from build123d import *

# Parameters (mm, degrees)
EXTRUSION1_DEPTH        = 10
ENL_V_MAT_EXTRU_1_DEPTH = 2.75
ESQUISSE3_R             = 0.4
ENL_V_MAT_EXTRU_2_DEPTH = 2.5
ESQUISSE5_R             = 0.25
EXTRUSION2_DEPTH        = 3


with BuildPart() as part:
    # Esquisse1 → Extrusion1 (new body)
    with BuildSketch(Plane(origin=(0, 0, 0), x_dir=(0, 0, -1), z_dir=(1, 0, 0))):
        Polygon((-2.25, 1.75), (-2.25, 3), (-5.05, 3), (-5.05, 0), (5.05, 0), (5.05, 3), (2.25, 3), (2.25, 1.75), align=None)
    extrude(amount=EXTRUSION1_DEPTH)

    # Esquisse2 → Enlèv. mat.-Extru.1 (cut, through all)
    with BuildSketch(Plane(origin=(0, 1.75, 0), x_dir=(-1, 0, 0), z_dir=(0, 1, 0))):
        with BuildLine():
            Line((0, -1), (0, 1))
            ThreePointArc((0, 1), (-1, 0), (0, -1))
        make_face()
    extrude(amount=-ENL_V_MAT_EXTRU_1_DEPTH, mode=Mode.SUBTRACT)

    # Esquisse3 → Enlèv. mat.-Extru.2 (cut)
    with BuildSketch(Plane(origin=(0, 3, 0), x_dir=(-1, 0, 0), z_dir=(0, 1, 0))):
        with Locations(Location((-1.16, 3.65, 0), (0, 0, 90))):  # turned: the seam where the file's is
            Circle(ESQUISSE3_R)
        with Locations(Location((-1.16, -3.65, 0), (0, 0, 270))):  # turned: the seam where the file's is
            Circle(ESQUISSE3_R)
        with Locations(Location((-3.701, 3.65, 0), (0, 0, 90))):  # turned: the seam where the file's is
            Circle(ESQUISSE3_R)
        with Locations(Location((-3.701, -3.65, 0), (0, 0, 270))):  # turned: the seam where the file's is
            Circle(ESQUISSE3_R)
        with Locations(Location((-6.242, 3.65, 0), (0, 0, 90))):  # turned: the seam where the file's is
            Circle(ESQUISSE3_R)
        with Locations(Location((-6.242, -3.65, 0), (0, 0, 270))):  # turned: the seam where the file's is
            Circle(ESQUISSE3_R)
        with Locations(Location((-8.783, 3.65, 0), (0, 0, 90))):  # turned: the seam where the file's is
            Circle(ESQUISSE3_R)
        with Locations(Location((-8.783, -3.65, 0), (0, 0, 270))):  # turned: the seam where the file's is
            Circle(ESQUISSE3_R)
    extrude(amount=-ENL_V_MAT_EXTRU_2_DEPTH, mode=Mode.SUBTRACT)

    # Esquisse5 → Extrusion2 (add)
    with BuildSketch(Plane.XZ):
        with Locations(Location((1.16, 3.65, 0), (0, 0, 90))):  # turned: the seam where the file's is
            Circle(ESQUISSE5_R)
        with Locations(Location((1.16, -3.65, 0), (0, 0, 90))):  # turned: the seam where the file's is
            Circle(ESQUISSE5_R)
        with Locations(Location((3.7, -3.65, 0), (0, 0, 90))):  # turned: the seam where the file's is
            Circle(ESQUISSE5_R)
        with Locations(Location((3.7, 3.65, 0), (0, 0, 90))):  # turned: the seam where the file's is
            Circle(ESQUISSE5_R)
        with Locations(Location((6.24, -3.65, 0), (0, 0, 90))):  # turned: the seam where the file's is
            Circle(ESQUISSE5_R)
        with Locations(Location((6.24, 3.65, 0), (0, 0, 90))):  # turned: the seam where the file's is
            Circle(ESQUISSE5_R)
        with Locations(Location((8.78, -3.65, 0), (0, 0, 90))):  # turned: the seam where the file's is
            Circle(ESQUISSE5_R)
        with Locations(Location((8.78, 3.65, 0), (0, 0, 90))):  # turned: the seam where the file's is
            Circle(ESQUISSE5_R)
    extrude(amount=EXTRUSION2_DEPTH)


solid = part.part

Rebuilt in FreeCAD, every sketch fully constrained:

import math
import FreeCAD as App
import Part
import Sketcher
from FreeCAD import Vector
Q = App.Units.Quantity


def add_polygon(sketch, points):
    """Adds a closed chain of lines whose ends are joined by coincident constraints."""
    first, n = sketch.GeometryCount, len(points)
    for a, b in zip(points, points[1:] + points[:1]):
        sketch.addGeometry(Part.LineSegment(App.Vector(*a, 0), App.Vector(*b, 0)), False)
    for i in range(n):
        sketch.addConstraint(Sketcher.Constraint("Coincident", first + i, 2, first + (i + 1) % n, 1))

doc = App.newDocument("Part")
params = doc.addObject("Spreadsheet::Sheet", "Params")
for row, (alias, value) in enumerate([
    ("sketch1_width", "3 mm"),
    ("sketch1_height", "2.8 mm"),
    ("sketch1_height2", "10.1 mm"),
    ("sketch1_width2", "1.25 mm"),
    ("pad1_length", "10 mm"),
    ("sketch2_radius", "1 mm"),
    ("sketch3_diameter", "0.8 mm"),
    ("pocket2_length", "2.5 mm"),
    ("sketch4_diameter", "0.5 mm"),
    ("pad2_length", "3 mm"),
], start=1):
    params.set(f"A{row}", alias)
    params.set(f"B{row}", "=" + value)
    params.setAlias(f"B{row}", alias)

body = doc.addObject("PartDesign::Body", "Body")

# Sketch on YZ plane
sketch1 = body.newObject("Sketcher::SketchObject", "Sketch")
sketch1.AttachmentSupport = (doc.getObject("YZ_Plane"), [""])
sketch1.MapMode = "FlatFace"
add_polygon(sketch1, [(1.8, 2.2), (3, 2.2), (3, 5), (0, 5), (0, -5), (3, -5), (3, -2.2), (1.8, -2.2)])  # lines 0-7
sketch1.addConstraint([
    Sketcher.Constraint("Horizontal", 0),
    Sketcher.Constraint("Vertical", 1),
    Sketcher.Constraint("Horizontal", 2),
    Sketcher.Constraint("Vertical", 3),
    Sketcher.Constraint("Horizontal", 4),
    Sketcher.Constraint("Vertical", 5),
    Sketcher.Constraint("Horizontal", 6),
    Sketcher.Constraint("Vertical", 7),
    Sketcher.Constraint("Symmetric", 2, 2, 3, 2, -1, 1),
    Sketcher.Constraint("Symmetric", 0, 2, 5, 2, -1),
    Sketcher.Constraint("DistanceX", 2, 2, 2, 1, Q("3 mm")),
    Sketcher.Constraint("DistanceY", 1, 1, 1, 2, Q("2.8 mm")),
    Sketcher.Constraint("DistanceY", 3, 2, 3, 1, Q("10.1 mm")),
    Sketcher.Constraint("DistanceX", 0, 1, 0, 2, Q("1.25 mm")),
])
sketch1.setExpression("Constraints[18]", "Params.sketch1_width")
sketch1.setExpression("Constraints[19]", "Params.sketch1_height")
sketch1.setExpression("Constraints[20]", "Params.sketch1_height2")
sketch1.setExpression("Constraints[21]", "Params.sketch1_width2")
pad1 = body.newObject("PartDesign::Pad", "Pad")
pad1.Profile = sketch1
pad1.setExpression("Length", "Params.pad1_length")

# Sketch on XZ plane
sketch2 = body.newObject("Sketcher::SketchObject", "Sketch001")
sketch2.AttachmentSupport = (doc.getObject("XZ_Plane"), [""])
sketch2.MapMode = "FlatFace"
sketch2.AttachmentOffset = App.Placement(Vector(0, 0, -1.75), App.Rotation())
sketch2.addGeometry([
    Part.LineSegment(Vector(0, -1, 0), Vector(0, 1, 0)),
    Part.ArcOfCircle(Part.Circle(Vector(0, 0, 0), Vector(0, 0, 1), 1), math.radians(-90), math.radians(90)),
], False)
sketch2.addConstraint([
    Sketcher.Constraint("Coincident", 0, 1, 1, 1),
    Sketcher.Constraint("Coincident", 1, 2, 0, 2),
    Sketcher.Constraint("Vertical", 0),
    Sketcher.Constraint("Coincident", 1, 3, -1, 1),
    Sketcher.Constraint("PointOnObject", 0, 1, -2),
    Sketcher.Constraint("Radius", 1, Q("1 mm")),
])
sketch2.setExpression("Constraints[5]", "Params.sketch2_radius")
pocket1 = body.newObject("PartDesign::Pocket", "Pocket")
pocket1.Profile = sketch2
pocket1.Type = "ThroughAll"
pocket1.Reversed = True

# Sketch on XZ plane
sketch3 = body.newObject("Sketcher::SketchObject", "Sketch002")
sketch3.AttachmentSupport = (doc.getObject("XZ_Plane"), [""])
sketch3.MapMode = "FlatFace"
sketch3.AttachmentOffset = App.Placement(Vector(0, 0, -3), App.Rotation())
sketch3.addGeometry([
    Part.Circle(Vector(1.16, 3.65, 0), Vector(0, 0, 1), 0.4),  # 0
    Part.Circle(Vector(1.16, -3.65, 0), Vector(0, 0, 1), 0.4),  # 1
    Part.Circle(Vector(3.7, 3.65, 0), Vector(0, 0, 1), 0.4),  # 2
    Part.Circle(Vector(3.7, -3.65, 0), Vector(0, 0, 1), 0.4),  # 3
    Part.Circle(Vector(6.24, 3.65, 0), Vector(0, 0, 1), 0.4),  # 4
    Part.Circle(Vector(6.24, -3.65, 0), Vector(0, 0, 1), 0.4),  # 5
    Part.Circle(Vector(8.78, 3.65, 0), Vector(0, 0, 1), 0.4),  # 6
    Part.Circle(Vector(8.78, -3.65, 0), Vector(0, 0, 1), 0.4),  # 7
], False)
sketch3.addConstraint([
    Sketcher.Constraint("Equal", 0, 1),
    Sketcher.Constraint("Equal", 1, 2),
    Sketcher.Constraint("Equal", 2, 3),
    Sketcher.Constraint("Equal", 3, 4),
    Sketcher.Constraint("Equal", 4, 5),
    Sketcher.Constraint("Equal", 5, 6),
    Sketcher.Constraint("Equal", 6, 7),
    Sketcher.Constraint("Symmetric", 0, 3, 1, 3, -1),
    Sketcher.Constraint("Symmetric", 2, 3, 3, 3, -1),
    Sketcher.Constraint("Symmetric", 4, 3, 5, 3, -1),
    Sketcher.Constraint("Symmetric", 6, 3, 7, 3, -1),
    Sketcher.Constraint("Horizontal", 0, 3, 2, 3),
    Sketcher.Constraint("Horizontal", 2, 3, 4, 3),
    Sketcher.Constraint("Horizontal", 4, 3, 6, 3),
    Sketcher.Constraint("Diameter", 0, Q("0.8 mm")),
    Sketcher.Constraint("DistanceY", 1, 3, 0, 3, Q("7.3 mm")),
    Sketcher.Constraint("DistanceX", -1, 1, 0, 3, Q("1.16 mm")),
    Sketcher.Constraint("DistanceX", -1, 1, 2, 3, Q("3.701 mm")),
    Sketcher.Constraint("DistanceX", -1, 1, 4, 3, Q("6.242 mm")),
    Sketcher.Constraint("DistanceX", -1, 1, 6, 3, Q("8.783 mm")),
])
sketch3.setExpression("Constraints[14]", "Params.sketch3_diameter")
pocket2 = body.newObject("PartDesign::Pocket", "Pocket001")
pocket2.Profile = sketch3
pocket2.setExpression("Length", "Params.pocket2_length")
pocket2.Reversed = True

# Sketch on XZ plane
sketch4 = body.newObject("Sketcher::SketchObject", "Sketch003")
sketch4.AttachmentSupport = (doc.getObject("XZ_Plane"), [""])
sketch4.MapMode = "FlatFace"
sketch4.addGeometry([
    Part.Circle(Vector(1.16, 3.65, 0), Vector(0, 0, 1), 0.25),  # 0
    Part.Circle(Vector(1.16, -3.65, 0), Vector(0, 0, 1), 0.25),  # 1
    Part.Circle(Vector(3.7, -3.65, 0), Vector(0, 0, 1), 0.25),  # 2
    Part.Circle(Vector(3.7, 3.65, 0), Vector(0, 0, 1), 0.25),  # 3
    Part.Circle(Vector(6.24, -3.65, 0), Vector(0, 0, 1), 0.25),  # 4
    Part.Circle(Vector(6.24, 3.65, 0), Vector(0, 0, 1), 0.25),  # 5
    Part.Circle(Vector(8.78, -3.65, 0), Vector(0, 0, 1), 0.25),  # 6
    Part.Circle(Vector(8.78, 3.65, 0), Vector(0, 0, 1), 0.25),  # 7
], False)
sketch4.addConstraint([
    Sketcher.Constraint("Equal", 0, 1),
    Sketcher.Constraint("Equal", 1, 2),
    Sketcher.Constraint("Equal", 2, 3),
    Sketcher.Constraint("Equal", 3, 4),
    Sketcher.Constraint("Equal", 4, 5),
    Sketcher.Constraint("Equal", 5, 6),
    Sketcher.Constraint("Equal", 6, 7),
    Sketcher.Constraint("Symmetric", 0, 3, 1, 3, -1),
    Sketcher.Constraint("Symmetric", 2, 3, 3, 3, -1),
    Sketcher.Constraint("Symmetric", 4, 3, 5, 3, -1),
    Sketcher.Constraint("Symmetric", 6, 3, 7, 3, -1),
    Sketcher.Constraint("Horizontal", 1, 3, 2, 3),
    Sketcher.Constraint("Horizontal", 2, 3, 4, 3),
    Sketcher.Constraint("Horizontal", 4, 3, 6, 3),
    Sketcher.Constraint("Diameter", 0, Q("0.5 mm")),
    Sketcher.Constraint("DistanceX", -1, 1, 2, 3, Q("3.7 mm")),
    Sketcher.Constraint("DistanceY", 1, 3, 0, 3, Q("7.3 mm")),
    Sketcher.Constraint("DistanceX", -1, 1, 0, 3, Q("1.16 mm")),
    Sketcher.Constraint("DistanceX", -1, 1, 4, 3, Q("6.24 mm")),
    Sketcher.Constraint("DistanceX", -1, 1, 6, 3, Q("8.78 mm")),
])
sketch4.setExpression("Constraints[14]", "Params.sketch4_diameter")
pad2 = body.newObject("PartDesign::Pad", "Pad001")
pad2.Profile = sketch4
pad2.setExpression("Length", "Params.pad2_length")

doc.recompute()
